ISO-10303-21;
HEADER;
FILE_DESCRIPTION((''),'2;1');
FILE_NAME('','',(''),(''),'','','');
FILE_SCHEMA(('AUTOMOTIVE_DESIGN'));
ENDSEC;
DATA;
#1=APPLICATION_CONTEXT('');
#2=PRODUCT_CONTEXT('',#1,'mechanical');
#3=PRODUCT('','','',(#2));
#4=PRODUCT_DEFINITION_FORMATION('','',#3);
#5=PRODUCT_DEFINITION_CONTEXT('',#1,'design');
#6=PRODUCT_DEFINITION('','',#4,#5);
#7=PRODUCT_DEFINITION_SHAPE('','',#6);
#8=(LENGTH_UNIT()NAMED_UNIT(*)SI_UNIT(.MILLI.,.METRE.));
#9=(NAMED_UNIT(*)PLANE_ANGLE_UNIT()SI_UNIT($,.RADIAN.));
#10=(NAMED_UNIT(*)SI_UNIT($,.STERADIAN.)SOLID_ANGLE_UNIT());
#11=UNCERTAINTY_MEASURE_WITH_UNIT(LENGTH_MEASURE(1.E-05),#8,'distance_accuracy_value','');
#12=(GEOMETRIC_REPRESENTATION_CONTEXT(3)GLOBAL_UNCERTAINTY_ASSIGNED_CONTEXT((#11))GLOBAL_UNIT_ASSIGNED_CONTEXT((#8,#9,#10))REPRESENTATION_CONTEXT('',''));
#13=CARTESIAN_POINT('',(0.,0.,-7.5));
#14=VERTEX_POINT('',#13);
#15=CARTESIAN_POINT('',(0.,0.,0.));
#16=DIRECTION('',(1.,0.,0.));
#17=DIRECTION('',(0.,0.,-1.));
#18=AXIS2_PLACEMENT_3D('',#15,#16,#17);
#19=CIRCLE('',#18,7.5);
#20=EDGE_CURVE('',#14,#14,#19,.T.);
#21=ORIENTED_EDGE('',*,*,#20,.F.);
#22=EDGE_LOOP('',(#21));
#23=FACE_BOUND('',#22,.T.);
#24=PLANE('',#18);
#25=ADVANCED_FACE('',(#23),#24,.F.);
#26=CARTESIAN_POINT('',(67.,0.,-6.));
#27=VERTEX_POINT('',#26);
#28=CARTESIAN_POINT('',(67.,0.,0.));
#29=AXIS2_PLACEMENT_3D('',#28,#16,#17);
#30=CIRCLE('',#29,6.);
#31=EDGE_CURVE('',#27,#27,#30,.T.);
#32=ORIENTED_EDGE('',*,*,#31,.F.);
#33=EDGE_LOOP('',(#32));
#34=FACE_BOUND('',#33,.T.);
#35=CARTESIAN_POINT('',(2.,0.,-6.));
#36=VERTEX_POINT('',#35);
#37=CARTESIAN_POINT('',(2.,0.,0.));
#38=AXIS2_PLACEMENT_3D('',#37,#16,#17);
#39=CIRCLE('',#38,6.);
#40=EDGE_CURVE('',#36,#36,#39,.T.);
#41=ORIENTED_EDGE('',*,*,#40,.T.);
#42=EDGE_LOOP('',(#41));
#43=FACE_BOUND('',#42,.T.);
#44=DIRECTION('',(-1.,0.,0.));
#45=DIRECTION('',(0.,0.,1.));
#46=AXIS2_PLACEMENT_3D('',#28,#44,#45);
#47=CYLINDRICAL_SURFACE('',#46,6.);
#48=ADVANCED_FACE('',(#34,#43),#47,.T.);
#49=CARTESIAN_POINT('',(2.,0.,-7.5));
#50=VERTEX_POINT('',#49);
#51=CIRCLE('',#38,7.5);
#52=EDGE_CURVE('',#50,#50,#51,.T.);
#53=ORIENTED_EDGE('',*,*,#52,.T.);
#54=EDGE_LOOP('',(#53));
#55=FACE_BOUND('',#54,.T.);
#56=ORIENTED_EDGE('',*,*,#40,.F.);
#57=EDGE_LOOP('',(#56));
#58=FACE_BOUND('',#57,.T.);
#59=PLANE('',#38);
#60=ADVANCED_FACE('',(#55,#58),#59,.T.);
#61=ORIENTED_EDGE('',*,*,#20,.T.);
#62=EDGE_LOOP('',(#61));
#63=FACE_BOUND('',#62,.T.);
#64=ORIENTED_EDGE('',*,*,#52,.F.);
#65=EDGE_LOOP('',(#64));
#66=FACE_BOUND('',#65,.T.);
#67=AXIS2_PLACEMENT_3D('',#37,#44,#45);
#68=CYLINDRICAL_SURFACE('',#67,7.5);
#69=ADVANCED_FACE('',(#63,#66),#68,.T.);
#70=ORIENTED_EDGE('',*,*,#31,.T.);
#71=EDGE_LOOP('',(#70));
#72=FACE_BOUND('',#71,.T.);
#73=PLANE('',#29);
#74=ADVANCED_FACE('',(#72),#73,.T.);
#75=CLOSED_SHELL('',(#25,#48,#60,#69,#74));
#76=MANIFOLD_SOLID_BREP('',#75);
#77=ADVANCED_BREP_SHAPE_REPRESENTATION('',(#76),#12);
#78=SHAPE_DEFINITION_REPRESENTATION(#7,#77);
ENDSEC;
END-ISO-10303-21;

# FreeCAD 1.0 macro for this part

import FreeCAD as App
import Part
import Sketcher

V = App.Vector

doc = App.newDocument("Part")
body = doc.addObject("PartDesign::Body", "Body")

# Sketch on YZ plane
sketch1 = body.newObject("Sketcher::SketchObject", "Sketch")
sketch1.AttachmentSupport = (doc.getObject("YZ_Plane"), [""])
sketch1.MapMode = "FlatFace"
sketch1.addGeometry([
    Part.Circle(V(0, 0, 0), V(0, 0, 1), 8),
    Part.Circle(V(0, 0, 0), V(0, 0, 1), 6),
], False)
sketch1.addConstraint([
    Sketcher.Constraint("Coincident", 0, 3, -1, 1),
    Sketcher.Constraint("Coincident", 1, 3, -1, 1),
    Sketcher.Constraint("Diameter", 0, 15.0),
    Sketcher.Constraint("Diameter", 1, 12.0),
])
pad1 = body.newObject("PartDesign::Pad", "Pad")
pad1.Profile = sketch1
pad1.Length = 2

# Sketch on YZ plane
sketch2 = body.newObject("Sketcher::SketchObject", "Sketch001")
sketch2.AttachmentSupport = (doc.getObject("YZ_Plane"), [""])
sketch2.MapMode = "FlatFace"
sketch2.addGeometry(Part.Circle(V(0, 0, 0), V(0, 0, 1), 6), False)
sketch2.addConstraint([
    Sketcher.Constraint("Coincident", 0, 3, -1, 1),
    Sketcher.Constraint("Diameter", 0, 12.0),
])
pad2 = body.newObject("PartDesign::Pad", "Pad001")
pad2.Profile = sketch2
pad2.Length = 67

doc.recompute()
